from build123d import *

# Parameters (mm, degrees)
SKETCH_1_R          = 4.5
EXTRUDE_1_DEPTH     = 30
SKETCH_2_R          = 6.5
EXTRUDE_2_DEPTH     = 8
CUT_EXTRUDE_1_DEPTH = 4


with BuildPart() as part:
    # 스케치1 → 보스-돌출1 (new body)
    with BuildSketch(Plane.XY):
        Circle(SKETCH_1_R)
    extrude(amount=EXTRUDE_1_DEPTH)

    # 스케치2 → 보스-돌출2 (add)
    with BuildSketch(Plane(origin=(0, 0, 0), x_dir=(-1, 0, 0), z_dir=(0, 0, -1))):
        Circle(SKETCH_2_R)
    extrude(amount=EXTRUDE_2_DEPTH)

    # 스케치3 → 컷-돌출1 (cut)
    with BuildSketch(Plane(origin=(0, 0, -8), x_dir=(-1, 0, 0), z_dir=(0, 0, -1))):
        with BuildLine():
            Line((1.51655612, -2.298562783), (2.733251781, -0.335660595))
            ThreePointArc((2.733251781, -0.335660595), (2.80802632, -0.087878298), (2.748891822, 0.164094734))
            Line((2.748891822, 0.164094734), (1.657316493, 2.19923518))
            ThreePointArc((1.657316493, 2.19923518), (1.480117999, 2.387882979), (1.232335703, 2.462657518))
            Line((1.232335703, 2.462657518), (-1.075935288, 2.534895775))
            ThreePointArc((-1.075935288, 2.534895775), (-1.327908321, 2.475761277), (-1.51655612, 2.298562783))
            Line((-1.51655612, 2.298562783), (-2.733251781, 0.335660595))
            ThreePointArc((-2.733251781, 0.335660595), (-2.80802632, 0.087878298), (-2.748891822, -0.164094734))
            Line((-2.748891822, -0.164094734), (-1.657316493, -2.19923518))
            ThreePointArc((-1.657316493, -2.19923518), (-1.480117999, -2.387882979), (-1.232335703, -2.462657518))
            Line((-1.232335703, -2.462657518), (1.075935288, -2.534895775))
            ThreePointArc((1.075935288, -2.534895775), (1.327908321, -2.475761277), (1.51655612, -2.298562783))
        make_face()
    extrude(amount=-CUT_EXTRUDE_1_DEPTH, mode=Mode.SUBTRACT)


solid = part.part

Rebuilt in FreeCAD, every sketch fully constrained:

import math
import FreeCAD as App
import Part
import Sketcher

V = App.Vector
Q = App.Units.Quantity

doc = App.newDocument("Part")
body = doc.addObject("PartDesign::Body", "Body")

# Sketch on XY plane
sketch1 = body.newObject("Sketcher::SketchObject", "Sketch")
sketch1.AttachmentSupport = (doc.getObject("XY_Plane"), [""])
sketch1.MapMode = "FlatFace"
sketch1.addGeometry(Part.Circle(V(0, 0, 0), V(0, 0, 1), 4.5), False)
sketch1.addConstraint(Sketcher.Constraint("Coincident", 0, 3, -1, 1))
sketch1.addConstraint(Sketcher.Constraint("Diameter", 0, Q("9 mm")))
pad1 = body.newObject("PartDesign::Pad", "Pad")
pad1.Profile = sketch1
pad1.Length = 30

# Sketch on XY plane
sketch2 = body.newObject("Sketcher::SketchObject", "Sketch001")
sketch2.AttachmentSupport = (doc.getObject("XY_Plane"), [""])
sketch2.MapMode = "FlatFace"
sketch2.addGeometry(Part.Circle(V(0, 0, 0), V(0, 0, 1), 6.5), False)
sketch2.addConstraint(Sketcher.Constraint("Coincident", 0, 3, -1, 1))
sketch2.addConstraint(Sketcher.Constraint("Diameter", 0, Q("13 mm")))
pad2 = body.newObject("PartDesign::Pad", "Pad001")
pad2.Profile = sketch2
pad2.Length = 8
pad2.Reversed = True

# Sketch on XY plane
sketch3 = body.newObject("Sketcher::SketchObject", "Sketch002")
sketch3.AttachmentSupport = (doc.getObject("XY_Plane"), [""])
sketch3.MapMode = "FlatFace"
sketch3.AttachmentOffset = App.Placement(V(0, 0, -8), App.Rotation())
sketch3.addGeometry(Part.LineSegment(V(-1.516556, -2.298563, 0), V(-2.733252, -0.335661, 0)), False)
sketch3.addGeometry(Part.ArcOfCircle(Part.Circle(V(-2.308271, -0.072238, 0), V(0, 0, 1), 0.5), math.radians(151.792509), math.radians(211.792509)), False)
sketch3.addGeometry(Part.LineSegment(V(-2.748892, 0.164095, 0), V(-1.657316, 2.199235, 0)), False)
sketch3.addGeometry(Part.ArcOfCircle(Part.Circle(V(-1.216696, 1.962902, 0), V(0, 0, 1), 0.5), math.radians(91.792509), math.radians(151.792509)), False)
sketch3.addGeometry(Part.LineSegment(V(-1.232336, 2.462658, 0), V(1.075935, 2.534896, 0)), False)
sketch3.addGeometry(Part.ArcOfCircle(Part.Circle(V(1.091575, 2.03514, 0), V(0, 0, 1), 0.5), math.radians(31.792509), math.radians(91.792509)), False)
sketch3.addGeometry(Part.LineSegment(V(1.516556, 2.298563, 0), V(2.733252, 0.335661, 0)), False)
sketch3.addGeometry(Part.ArcOfCircle(Part.Circle(V(2.308271, 0.072238, 0), V(0, 0, 1), 0.5), math.radians(-28.207491), math.radians(31.792509)), False)
sketch3.addGeometry(Part.LineSegment(V(2.748892, -0.164095, 0), V(1.657316, -2.199235, 0)), False)
sketch3.addGeometry(Part.ArcOfCircle(Part.Circle(V(1.216696, -1.962902, 0), V(0, 0, 1), 0.5), math.radians(-88.207491), math.radians(-28.207491)), False)
sketch3.addGeometry(Part.LineSegment(V(1.232336, -2.462658, 0), V(-1.075935, -2.534896, 0)), False)
sketch3.addGeometry(Part.ArcOfCircle(Part.Circle(V(-1.091575, -2.03514, 0), V(0, 0, 1), 0.5), math.radians(-148.207491), math.radians(-88.207491)), False)
sketch3.addConstraint(Sketcher.Constraint("Tangent", 0, 2, 1, 2))
sketch3.addConstraint(Sketcher.Constraint("Tangent", 1, 1, 2, 1))
sketch3.addConstraint(Sketcher.Constraint("Tangent", 2, 2, 3, 2))
sketch3.addConstraint(Sketcher.Constraint("Tangent", 3, 1, 4, 1))
sketch3.addConstraint(Sketcher.Constraint("Tangent", 4, 2, 5, 2))
sketch3.addConstraint(Sketcher.Constraint("Tangent", 5, 1, 6, 1))
sketch3.addConstraint(Sketcher.Constraint("Tangent", 6, 2, 7, 2))
sketch3.addConstraint(Sketcher.Constraint("Tangent", 7, 1, 8, 1))
sketch3.addConstraint(Sketcher.Constraint("Tangent", 8, 2, 9, 2))
sketch3.addConstraint(Sketcher.Constraint("Tangent", 9, 1, 10, 1))
sketch3.addConstraint(Sketcher.Constraint("Tangent", 10, 2, 11, 2))
sketch3.addConstraint(Sketcher.Constraint("Tangent", 11, 1, 0, 1))
sketch3.addConstraint(Sketcher.Constraint("Equal", 1, 3))
sketch3.addConstraint(Sketcher.Constraint("Equal", 3, 5))
sketch3.addConstraint(Sketcher.Constraint("Equal", 5, 7))
sketch3.addConstraint(Sketcher.Constraint("Equal", 7, 9))
sketch3.addConstraint(Sketcher.Constraint("Equal", 9, 11))
sketch3.addConstraint(Sketcher.Constraint("Symmetric", 1, 3, 7, 3, -1, 1))
sketch3.addConstraint(Sketcher.Constraint("Symmetric", 3, 3, 9, 3, -1, 1))
sketch3.addConstraint(Sketcher.Constraint("Symmetric", 5, 3, 11, 3, -1, 1))
sketch3.addConstraint(Sketcher.Constraint("Equal", 0, 2))
sketch3.addConstraint(Sketcher.Constraint("Equal", 2, 4))
sketch3.addConstraint(Sketcher.Constraint("Radius", 1, Q("0.5 mm")))
sketch3.addConstraint(Sketcher.Constraint("Distance", 0, Q("2.309401 mm")))
sketch3.addConstraint(Sketcher.Constraint("DistanceY", 0, 2, 5, 3, Q("2.370801 mm")))
sketch3.addConstraint(Sketcher.Constraint("DistanceX", 1, 3, -1, 1, Q("2.308271 mm")))
sketch3.addConstraint(Sketcher.Constraint("DistanceY", 1, 3, -1, 1, Q("0.072238 mm")))
pocket1 = body.newObject("PartDesign::Pocket", "Pocket")
pocket1.Profile = sketch3
pocket1.Length = 4
pocket1.Reversed = True

doc.recompute()
